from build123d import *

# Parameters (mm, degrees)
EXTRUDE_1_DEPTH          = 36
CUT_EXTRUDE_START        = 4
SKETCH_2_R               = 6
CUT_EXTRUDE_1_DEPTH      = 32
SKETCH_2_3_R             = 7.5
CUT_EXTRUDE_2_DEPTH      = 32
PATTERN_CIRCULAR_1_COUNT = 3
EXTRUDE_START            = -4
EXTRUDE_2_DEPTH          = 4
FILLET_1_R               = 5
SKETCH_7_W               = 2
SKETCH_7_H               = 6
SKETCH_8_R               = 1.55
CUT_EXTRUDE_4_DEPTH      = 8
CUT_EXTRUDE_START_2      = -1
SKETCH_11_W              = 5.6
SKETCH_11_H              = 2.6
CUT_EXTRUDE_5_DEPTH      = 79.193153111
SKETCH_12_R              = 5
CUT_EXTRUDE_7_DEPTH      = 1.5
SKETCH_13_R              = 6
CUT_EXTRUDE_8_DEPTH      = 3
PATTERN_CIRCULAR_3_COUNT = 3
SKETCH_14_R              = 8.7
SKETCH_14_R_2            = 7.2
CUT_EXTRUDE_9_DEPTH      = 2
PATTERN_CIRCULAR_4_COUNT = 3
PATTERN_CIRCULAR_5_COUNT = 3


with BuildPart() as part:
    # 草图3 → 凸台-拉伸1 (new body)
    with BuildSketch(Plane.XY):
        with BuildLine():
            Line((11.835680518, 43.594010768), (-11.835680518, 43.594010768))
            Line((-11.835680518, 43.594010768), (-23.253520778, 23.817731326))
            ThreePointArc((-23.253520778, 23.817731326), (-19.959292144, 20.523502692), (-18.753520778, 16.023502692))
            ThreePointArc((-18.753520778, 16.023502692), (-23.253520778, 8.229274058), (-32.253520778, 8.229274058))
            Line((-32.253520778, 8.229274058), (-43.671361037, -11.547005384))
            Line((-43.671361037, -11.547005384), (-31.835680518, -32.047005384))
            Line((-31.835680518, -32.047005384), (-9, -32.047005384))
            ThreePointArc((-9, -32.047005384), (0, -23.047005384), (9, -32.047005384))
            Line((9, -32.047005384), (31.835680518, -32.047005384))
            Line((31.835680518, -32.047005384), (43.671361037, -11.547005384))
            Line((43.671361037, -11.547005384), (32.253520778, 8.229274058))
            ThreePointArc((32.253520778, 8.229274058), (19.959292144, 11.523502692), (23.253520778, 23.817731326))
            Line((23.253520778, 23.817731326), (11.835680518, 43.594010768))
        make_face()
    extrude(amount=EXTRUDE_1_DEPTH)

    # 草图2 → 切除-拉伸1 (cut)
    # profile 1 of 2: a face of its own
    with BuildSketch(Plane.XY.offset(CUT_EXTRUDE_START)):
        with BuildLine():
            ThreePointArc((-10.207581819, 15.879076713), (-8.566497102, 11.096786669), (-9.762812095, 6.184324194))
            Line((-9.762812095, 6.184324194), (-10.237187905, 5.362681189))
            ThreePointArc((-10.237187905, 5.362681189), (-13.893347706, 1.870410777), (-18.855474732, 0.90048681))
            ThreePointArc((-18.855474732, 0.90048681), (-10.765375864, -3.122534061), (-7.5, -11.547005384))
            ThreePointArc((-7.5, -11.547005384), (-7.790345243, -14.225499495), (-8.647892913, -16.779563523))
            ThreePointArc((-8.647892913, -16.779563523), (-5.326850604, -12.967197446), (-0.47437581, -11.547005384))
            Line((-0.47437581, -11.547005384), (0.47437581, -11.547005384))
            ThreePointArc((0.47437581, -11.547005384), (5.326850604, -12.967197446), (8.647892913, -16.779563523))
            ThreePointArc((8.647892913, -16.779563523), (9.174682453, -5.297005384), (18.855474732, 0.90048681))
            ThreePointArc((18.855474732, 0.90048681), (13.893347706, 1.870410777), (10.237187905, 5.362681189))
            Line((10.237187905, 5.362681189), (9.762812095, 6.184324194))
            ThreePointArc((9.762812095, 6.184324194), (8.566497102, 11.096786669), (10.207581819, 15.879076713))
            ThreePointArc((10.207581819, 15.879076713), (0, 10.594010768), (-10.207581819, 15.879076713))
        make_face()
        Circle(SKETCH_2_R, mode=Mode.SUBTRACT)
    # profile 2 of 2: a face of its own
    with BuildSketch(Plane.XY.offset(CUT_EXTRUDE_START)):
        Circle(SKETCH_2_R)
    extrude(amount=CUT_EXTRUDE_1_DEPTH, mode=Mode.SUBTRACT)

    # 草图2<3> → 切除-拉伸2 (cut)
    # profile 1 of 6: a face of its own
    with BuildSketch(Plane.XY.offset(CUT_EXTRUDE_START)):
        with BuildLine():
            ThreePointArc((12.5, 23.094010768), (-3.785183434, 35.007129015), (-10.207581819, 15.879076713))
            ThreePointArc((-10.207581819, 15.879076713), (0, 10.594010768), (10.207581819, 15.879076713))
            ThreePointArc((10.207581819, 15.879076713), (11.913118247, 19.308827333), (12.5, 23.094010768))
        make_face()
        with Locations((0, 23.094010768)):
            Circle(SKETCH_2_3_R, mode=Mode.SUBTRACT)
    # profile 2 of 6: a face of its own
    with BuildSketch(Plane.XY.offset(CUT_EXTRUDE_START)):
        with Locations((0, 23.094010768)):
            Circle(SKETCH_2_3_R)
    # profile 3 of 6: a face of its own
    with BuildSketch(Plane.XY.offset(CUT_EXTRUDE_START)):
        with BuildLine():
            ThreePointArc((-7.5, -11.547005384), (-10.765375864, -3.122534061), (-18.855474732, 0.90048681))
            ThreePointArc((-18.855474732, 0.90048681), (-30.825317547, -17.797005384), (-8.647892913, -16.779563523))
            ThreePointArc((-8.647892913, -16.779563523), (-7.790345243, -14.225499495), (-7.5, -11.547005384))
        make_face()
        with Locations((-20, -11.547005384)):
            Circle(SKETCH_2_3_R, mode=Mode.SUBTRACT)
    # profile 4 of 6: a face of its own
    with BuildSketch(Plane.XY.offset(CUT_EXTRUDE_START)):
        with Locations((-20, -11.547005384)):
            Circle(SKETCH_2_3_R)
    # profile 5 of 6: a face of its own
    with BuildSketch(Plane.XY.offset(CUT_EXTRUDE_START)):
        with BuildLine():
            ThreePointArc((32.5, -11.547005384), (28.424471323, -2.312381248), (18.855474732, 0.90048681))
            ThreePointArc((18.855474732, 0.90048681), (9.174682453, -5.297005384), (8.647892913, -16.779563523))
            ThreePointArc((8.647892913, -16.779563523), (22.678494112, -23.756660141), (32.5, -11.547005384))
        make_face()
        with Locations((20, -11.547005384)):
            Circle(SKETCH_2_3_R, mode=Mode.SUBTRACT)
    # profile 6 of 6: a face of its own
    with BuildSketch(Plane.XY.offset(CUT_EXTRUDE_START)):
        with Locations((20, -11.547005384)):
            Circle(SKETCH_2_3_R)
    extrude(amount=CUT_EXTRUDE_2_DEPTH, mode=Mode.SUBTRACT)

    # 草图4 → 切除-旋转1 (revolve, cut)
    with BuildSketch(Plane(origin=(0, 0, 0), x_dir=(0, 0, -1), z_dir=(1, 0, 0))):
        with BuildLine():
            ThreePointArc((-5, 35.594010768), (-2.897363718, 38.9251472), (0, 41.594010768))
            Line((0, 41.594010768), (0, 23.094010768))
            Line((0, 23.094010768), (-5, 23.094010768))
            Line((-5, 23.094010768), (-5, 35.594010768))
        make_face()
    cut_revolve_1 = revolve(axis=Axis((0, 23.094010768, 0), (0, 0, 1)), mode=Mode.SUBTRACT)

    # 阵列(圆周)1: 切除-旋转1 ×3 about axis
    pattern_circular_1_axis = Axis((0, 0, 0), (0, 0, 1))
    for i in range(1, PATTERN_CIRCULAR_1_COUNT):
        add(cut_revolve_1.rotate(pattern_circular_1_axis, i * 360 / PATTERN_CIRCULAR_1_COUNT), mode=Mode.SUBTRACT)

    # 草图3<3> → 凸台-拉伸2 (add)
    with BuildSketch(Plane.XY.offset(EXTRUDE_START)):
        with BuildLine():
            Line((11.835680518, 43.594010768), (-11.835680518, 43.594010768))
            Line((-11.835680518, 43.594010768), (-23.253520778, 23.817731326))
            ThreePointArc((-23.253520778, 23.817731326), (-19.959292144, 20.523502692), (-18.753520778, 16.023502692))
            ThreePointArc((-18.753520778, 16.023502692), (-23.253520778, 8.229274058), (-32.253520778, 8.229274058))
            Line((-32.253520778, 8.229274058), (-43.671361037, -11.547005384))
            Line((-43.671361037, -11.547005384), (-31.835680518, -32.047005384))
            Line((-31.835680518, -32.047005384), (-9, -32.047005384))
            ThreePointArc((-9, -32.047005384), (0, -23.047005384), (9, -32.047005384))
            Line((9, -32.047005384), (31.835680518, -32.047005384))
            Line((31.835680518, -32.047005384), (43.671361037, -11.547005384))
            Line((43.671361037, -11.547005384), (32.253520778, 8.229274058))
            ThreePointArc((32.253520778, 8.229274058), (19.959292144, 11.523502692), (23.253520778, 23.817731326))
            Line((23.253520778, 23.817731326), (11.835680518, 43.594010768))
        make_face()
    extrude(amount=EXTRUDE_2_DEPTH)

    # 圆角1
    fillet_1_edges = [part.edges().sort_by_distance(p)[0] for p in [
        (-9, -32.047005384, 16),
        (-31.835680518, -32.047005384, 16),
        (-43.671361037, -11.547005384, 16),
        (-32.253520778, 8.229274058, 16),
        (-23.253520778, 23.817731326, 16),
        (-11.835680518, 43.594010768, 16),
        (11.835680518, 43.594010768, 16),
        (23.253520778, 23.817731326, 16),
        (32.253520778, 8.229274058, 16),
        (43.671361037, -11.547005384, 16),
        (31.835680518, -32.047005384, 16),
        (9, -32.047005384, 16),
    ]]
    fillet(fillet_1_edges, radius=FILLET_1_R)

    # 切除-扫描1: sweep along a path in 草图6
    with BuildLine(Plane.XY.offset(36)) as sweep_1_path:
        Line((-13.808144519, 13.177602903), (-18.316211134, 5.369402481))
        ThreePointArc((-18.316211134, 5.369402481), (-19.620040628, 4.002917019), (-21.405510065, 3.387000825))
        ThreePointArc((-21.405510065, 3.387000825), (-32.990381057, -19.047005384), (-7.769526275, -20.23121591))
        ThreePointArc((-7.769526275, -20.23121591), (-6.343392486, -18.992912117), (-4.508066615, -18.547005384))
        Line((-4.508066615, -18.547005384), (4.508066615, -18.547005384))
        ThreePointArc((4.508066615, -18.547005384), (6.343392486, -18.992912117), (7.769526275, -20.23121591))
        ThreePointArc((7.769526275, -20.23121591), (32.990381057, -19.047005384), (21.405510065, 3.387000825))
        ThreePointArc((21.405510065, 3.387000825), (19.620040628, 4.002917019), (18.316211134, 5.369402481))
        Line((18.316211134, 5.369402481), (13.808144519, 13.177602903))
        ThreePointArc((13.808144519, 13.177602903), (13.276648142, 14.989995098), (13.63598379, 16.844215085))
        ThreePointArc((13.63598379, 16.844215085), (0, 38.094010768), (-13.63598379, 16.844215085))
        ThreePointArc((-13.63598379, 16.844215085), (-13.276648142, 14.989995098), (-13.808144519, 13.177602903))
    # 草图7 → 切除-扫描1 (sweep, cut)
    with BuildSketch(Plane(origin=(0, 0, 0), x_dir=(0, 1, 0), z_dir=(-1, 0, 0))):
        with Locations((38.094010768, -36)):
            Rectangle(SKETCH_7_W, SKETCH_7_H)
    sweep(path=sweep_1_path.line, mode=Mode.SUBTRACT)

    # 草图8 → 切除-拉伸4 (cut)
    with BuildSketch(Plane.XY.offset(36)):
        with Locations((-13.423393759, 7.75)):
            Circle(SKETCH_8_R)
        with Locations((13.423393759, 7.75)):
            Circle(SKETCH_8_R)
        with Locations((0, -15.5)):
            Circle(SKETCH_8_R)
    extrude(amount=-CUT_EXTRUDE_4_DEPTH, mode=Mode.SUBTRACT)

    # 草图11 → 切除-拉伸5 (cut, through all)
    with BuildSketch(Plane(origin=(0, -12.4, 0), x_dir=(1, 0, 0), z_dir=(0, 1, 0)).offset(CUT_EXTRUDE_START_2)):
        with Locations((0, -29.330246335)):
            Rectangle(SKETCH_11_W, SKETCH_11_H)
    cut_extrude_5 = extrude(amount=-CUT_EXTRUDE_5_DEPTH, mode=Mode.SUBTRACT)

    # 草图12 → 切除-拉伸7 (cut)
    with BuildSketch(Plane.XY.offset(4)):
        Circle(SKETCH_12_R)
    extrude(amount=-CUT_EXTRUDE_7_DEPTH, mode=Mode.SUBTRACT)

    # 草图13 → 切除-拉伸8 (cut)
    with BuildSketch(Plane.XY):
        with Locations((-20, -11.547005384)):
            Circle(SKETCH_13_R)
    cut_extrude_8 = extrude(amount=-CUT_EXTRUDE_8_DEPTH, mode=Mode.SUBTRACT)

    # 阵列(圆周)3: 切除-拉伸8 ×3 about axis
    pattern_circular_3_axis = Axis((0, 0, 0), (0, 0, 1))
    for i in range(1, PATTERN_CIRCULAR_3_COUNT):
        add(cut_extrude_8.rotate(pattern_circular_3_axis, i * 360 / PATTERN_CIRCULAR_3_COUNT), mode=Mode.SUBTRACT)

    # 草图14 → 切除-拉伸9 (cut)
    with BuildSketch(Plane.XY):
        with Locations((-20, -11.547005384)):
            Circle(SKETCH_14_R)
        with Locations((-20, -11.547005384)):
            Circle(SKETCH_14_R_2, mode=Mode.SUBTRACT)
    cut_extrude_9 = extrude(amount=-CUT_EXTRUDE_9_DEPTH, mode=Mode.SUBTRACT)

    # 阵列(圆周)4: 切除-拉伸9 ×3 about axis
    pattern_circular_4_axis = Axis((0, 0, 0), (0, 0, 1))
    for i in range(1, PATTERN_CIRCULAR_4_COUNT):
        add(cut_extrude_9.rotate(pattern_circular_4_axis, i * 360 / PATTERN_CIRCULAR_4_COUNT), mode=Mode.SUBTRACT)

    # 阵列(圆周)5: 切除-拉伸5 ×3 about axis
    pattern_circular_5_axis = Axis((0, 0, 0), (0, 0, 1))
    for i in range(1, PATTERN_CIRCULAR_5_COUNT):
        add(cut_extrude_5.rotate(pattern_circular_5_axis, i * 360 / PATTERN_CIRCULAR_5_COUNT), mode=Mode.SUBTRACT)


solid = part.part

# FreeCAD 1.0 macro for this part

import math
import FreeCAD as App
import Part
import Sketcher
Q = App.Units.Quantity


def edges_at(feature, points):
    """Names of the edges that pass closest to the given points."""
    edges = feature.Shape.Edges
    near = lambda p: min(range(len(edges)), key=lambda i: edges[i].distToShape(Part.Vertex(*p))[0])
    return sorted({f"Edge{near(p) + 1}" for p in points})


def add_polygon(sketch, points):
    """Adds a closed chain of lines whose ends are joined by coincident constraints."""
    first, n = sketch.GeometryCount, len(points)
    for a, b in zip(points, points[1:] + points[:1]):
        sketch.addGeometry(Part.LineSegment(App.Vector(*a, 0), App.Vector(*b, 0)), False)
    for i in range(n):
        sketch.addConstraint(Sketcher.Constraint("Coincident", first + i, 2, first + (i + 1) % n, 1))

doc = App.newDocument("Part")
body = doc.addObject("PartDesign::Body", "Body")

# Sketch on XY plane
sketch1 = body.newObject("Sketcher::SketchObject", "Sketch")
sketch1.AttachmentSupport = (doc.getObject("XY_Plane"), [""])
sketch1.MapMode = "FlatFace"
sketch1.addGeometry([
    Part.LineSegment(App.Vector(11.835681, 43.594011, 0), App.Vector(-11.835681, 43.594011, 0)),  # 0
    Part.LineSegment(App.Vector(-11.835681, 43.594011, 0), App.Vector(-23.253521, 23.817731, 0)),  # 1
    Part.ArcOfCircle(Part.Circle(App.Vector(-27.753521, 16.023503, 0), App.Vector(0, 0, 1), 9), math.radians(0), math.radians(60)),  # 2
    Part.ArcOfCircle(Part.Circle(App.Vector(-27.753521, 16.023503, 0), App.Vector(0, 0, 1), 9), math.radians(-120), math.radians(0)),  # 3
    Part.LineSegment(App.Vector(-32.253521, 8.229274, 0), App.Vector(-43.671361, -11.547005, 0)),  # 4
    Part.LineSegment(App.Vector(-43.671361, -11.547005, 0), App.Vector(-31.835681, -32.047005, 0)),  # 5
    Part.LineSegment(App.Vector(-31.835681, -32.047005, 0), App.Vector(-9, -32.047005, 0)),  # 6
    Part.ArcOfCircle(Part.Circle(App.Vector(0, -32.047005, 0), App.Vector(0, 0, 1), 9), math.radians(0), math.radians(180)),  # 7
    Part.LineSegment(App.Vector(9, -32.047005, 0), App.Vector(31.835681, -32.047005, 0)),  # 8
    Part.LineSegment(App.Vector(31.835681, -32.047005, 0), App.Vector(43.671361, -11.547005, 0)),  # 9
    Part.LineSegment(App.Vector(43.671361, -11.547005, 0), App.Vector(32.253521, 8.229274, 0)),  # 10
    Part.ArcOfCircle(Part.Circle(App.Vector(27.753521, 16.023503, 0), App.Vector(0, 0, 1), 9), math.radians(120), math.radians(300)),  # 11
    Part.LineSegment(App.Vector(23.253521, 23.817731, 0), App.Vector(11.835681, 43.594011, 0)),  # 12
], False)
sketch1.addConstraint([
    Sketcher.Constraint("Coincident", 0, 2, 1, 1),
    Sketcher.Constraint("Coincident", 1, 2, 2, 2),
    Sketcher.Constraint("Tangent", 2, 1, 3, 2),
    Sketcher.Constraint("Coincident", 3, 1, 4, 1),
    Sketcher.Constraint("Coincident", 4, 2, 5, 1),
    Sketcher.Constraint("Coincident", 5, 2, 6, 1),
    Sketcher.Constraint("Coincident", 6, 2, 7, 2),
    Sketcher.Constraint("Coincident", 7, 1, 8, 1),
    Sketcher.Constraint("Coincident", 8, 2, 9, 1),
    Sketcher.Constraint("Coincident", 9, 2, 10, 1),
    Sketcher.Constraint("Coincident", 10, 2, 11, 2),
    Sketcher.Constraint("Coincident", 11, 1, 12, 1),
    Sketcher.Constraint("Coincident", 12, 2, 0, 1),
    Sketcher.Constraint("Horizontal", 0),
    Sketcher.Constraint("Horizontal", 6),
    Sketcher.Constraint("Horizontal", 8),
    Sketcher.Constraint("Equal", 2, 3),
    Sketcher.Constraint("Equal", 3, 7),
    Sketcher.Constraint("Equal", 7, 11),
    Sketcher.Constraint("Symmetric", 2, 3, 11, 3, -2),
    Sketcher.Constraint("Symmetric", 6, 2, 7, 1, -2),
    Sketcher.Constraint("Symmetric", 4, 2, 9, 2, -2),
    Sketcher.Constraint("Parallel", 1, 4),
    Sketcher.Constraint("Parallel", 4, 9),
    Sketcher.Constraint("Parallel", 5, 10),
    Sketcher.Constraint("Parallel", 10, 12),
    Sketcher.Constraint("Horizontal", 11, 3, 2, 1),
    Sketcher.Constraint("Horizontal", 7, 3, 5, 2),
    Sketcher.Constraint("Horizontal", 3, 1, 10, 2),
    Sketcher.Constraint("Horizontal", 1, 2, 11, 1),
    Sketcher.Constraint("Equal", 1, 4),
    Sketcher.Constraint("Radius", 2, 9.0),
    Sketcher.Constraint("Angle", 1, Q("-120 deg")),
    Sketcher.Constraint("DistanceX", 3, 1, 1, 2, 9.0),
    Sketcher.Constraint("DistanceX", 2, 3, 1, 2, 4.5),
    Sketcher.Constraint("DistanceY", 5, 2, 4, 2, 20.5),
    Sketcher.Constraint("DistanceX", 0, 2, 0, 1, 23.671361),
    Sketcher.Constraint("DistanceX", 6, 1, 6, 2, 22.835681),
    Sketcher.Constraint("DistanceY", -1, 1, 0, 2, 43.594011),
])
pad1 = body.newObject("PartDesign::Pad", "Pad")
pad1.Profile = sketch1
pad1.Length = 36

# Sketch on XY plane
sketch2 = body.newObject("Sketcher::SketchObject", "Sketch001")
sketch2.AttachmentSupport = (doc.getObject("XY_Plane"), [""])
sketch2.MapMode = "FlatFace"
sketch2.AttachmentOffset = App.Placement(App.Vector(0, 0, 4), App.Rotation())
sketch2.addGeometry([
    Part.ArcOfCircle(Part.Circle(App.Vector(-17.557041, 10.684324, 0), App.Vector(0, 0, 1), 9), math.radians(-30), math.radians(35.253475)),  # 0
    Part.LineSegment(App.Vector(-9.762812, 6.184324, 0), App.Vector(-10.237188, 5.362681, 0)),  # 1
    Part.ArcOfCircle(Part.Circle(App.Vector(-18.031417, 9.862681, 0), App.Vector(0, 0, 1), 9), math.radians(-95.253475), math.radians(-30)),  # 2
    Part.ArcOfCircle(Part.Circle(App.Vector(-20, -11.547005, 0), App.Vector(0, 0, 1), 12.5), math.radians(0), math.radians(84.746525)),  # 3
    Part.ArcOfCircle(Part.Circle(App.Vector(-20, -11.547005, 0), App.Vector(0, 0, 1), 12.5), math.radians(-24.746525), math.radians(0)),  # 4
    Part.ArcOfCircle(Part.Circle(App.Vector(-0.474376, -20.547005, 0), App.Vector(0, 0, 1), 9), math.radians(90), math.radians(155.253475)),  # 5
    Part.LineSegment(App.Vector(-0.474376, -11.547005, 0), App.Vector(0.474376, -11.547005, 0)),  # 6
    Part.ArcOfCircle(Part.Circle(App.Vector(0.474376, -20.547005, 0), App.Vector(0, 0, 1), 9), math.radians(24.746525), math.radians(90)),  # 7
    Part.ArcOfCircle(Part.Circle(App.Vector(20, -11.547005, 0), App.Vector(0, 0, 1), 12.5), math.radians(95.253475), math.radians(204.746525)),  # 8
    Part.ArcOfCircle(Part.Circle(App.Vector(18.031417, 9.862681, 0), App.Vector(0, 0, 1), 9), math.radians(-150), math.radians(-84.746525)),  # 9
    Part.LineSegment(App.Vector(10.237188, 5.362681, 0), App.Vector(9.762812, 6.184324, 0)),  # 10
    Part.ArcOfCircle(Part.Circle(App.Vector(17.557041, 10.684324, 0), App.Vector(0, 0, 1), 9), math.radians(144.746525), math.radians(210)),  # 11
    Part.ArcOfCircle(Part.Circle(App.Vector(0, 23.094011, 0), App.Vector(0, 0, 1), 12.5), math.radians(-144.746525), math.radians(-35.253475)),  # 12
], False)
sketch2.addConstraint([
    Sketcher.Constraint("Tangent", 0, 1, 1, 1),
    Sketcher.Constraint("Tangent", 1, 2, 2, 2),
    Sketcher.Constraint("Tangent", 2, 1, 3, 2),
    Sketcher.Constraint("Tangent", 3, 1, 4, 2),
    Sketcher.Constraint("Tangent", 4, 1, 5, 2),
    Sketcher.Constraint("Tangent", 5, 1, 6, 1),
    Sketcher.Constraint("Tangent", 6, 2, 7, 2),
    Sketcher.Constraint("Tangent", 7, 1, 8, 2),
    Sketcher.Constraint("Tangent", 8, 1, 9, 2),
    Sketcher.Constraint("Tangent", 9, 1, 10, 1),
    Sketcher.Constraint("Tangent", 10, 2, 11, 2),
    Sketcher.Constraint("Tangent", 11, 1, 12, 2),
    Sketcher.Constraint("Tangent", 12, 1, 0, 2),
    Sketcher.Constraint("Horizontal", 6),
    Sketcher.Constraint("Equal", 0, 2),
    Sketcher.Constraint("Equal", 3, 4),
    Sketcher.Constraint("Equal", 2, 5),
    Sketcher.Constraint("Equal", 5, 7),
    Sketcher.Constraint("Equal", 4, 8),
    Sketcher.Constraint("Equal", 7, 9),
    Sketcher.Constraint("Equal", 9, 11),
    Sketcher.Constraint("Equal", 8, 12),
    Sketcher.Constraint("Symmetric", 3, 3, 8, 3, -2),
    Sketcher.Constraint("Symmetric", 0, 3, 11, 3, -2),
    Sketcher.Constraint("Horizontal", 2, 3, 9, 3),
    Sketcher.Constraint("Horizontal", 8, 3, 3, 1),
    Sketcher.Constraint("Horizontal", 3, 1, 5, 1),
    Sketcher.Constraint("Radius", 0, 9.0),
    Sketcher.Constraint("Radius", 3, 12.5),
    Sketcher.Constraint("Angle", 1, Q("-120 deg")),
    Sketcher.Constraint("DistanceX", 3, 3, -1, 1, 20.0),
    Sketcher.Constraint("DistanceX", 6, 2, 8, 1, 18.381099),
    Sketcher.Constraint("Distance", 1, 0.948752),
    Sketcher.Constraint("DistanceY", -1, 1, 2, 3, 9.862681),
])
pocket1 = body.newObject("PartDesign::Pocket", "Pocket")
pocket1.Profile = sketch2
pocket1.Length = 32
pocket1.Reversed = True

# Sketch on XY plane
sketch3 = body.newObject("Sketcher::SketchObject", "Sketch002")
sketch3.AttachmentSupport = (doc.getObject("XY_Plane"), [""])
sketch3.MapMode = "FlatFace"
sketch3.AttachmentOffset = App.Placement(App.Vector(0, 0, 4), App.Rotation())
sketch3.addGeometry([
    Part.ArcOfCircle(Part.Circle(App.Vector(0, 23.094011, 0), App.Vector(0, 0, 1), 12.5), math.radians(0), math.radians(215.253475)),  # 0
    Part.ArcOfCircle(Part.Circle(App.Vector(0, 23.094011, 0), App.Vector(0, 0, 1), 12.5), math.radians(-144.746525), math.radians(-35.253475)),  # 1
    Part.ArcOfCircle(Part.Circle(App.Vector(0, 23.094011, 0), App.Vector(0, 0, 1), 12.5), math.radians(-35.253475), math.radians(0)),  # 2
    Part.ArcOfCircle(Part.Circle(App.Vector(-20, -11.547005, 0), App.Vector(0, 0, 1), 12.5), math.radians(0), math.radians(84.746525)),  # 3
    Part.ArcOfCircle(Part.Circle(App.Vector(-20, -11.547005, 0), App.Vector(0, 0, 1), 12.5), math.radians(84.746525), math.radians(335.253475)),  # 4
    Part.ArcOfCircle(Part.Circle(App.Vector(-20, -11.547005, 0), App.Vector(0, 0, 1), 12.5), math.radians(-24.746525), math.radians(0)),  # 5
    Part.ArcOfCircle(Part.Circle(App.Vector(20, -11.547005, 0), App.Vector(0, 0, 1), 12.5), math.radians(0), math.radians(95.253475)),  # 6
    Part.ArcOfCircle(Part.Circle(App.Vector(20, -11.547005, 0), App.Vector(0, 0, 1), 12.5), math.radians(95.253475), math.radians(204.746525)),  # 7
    Part.ArcOfCircle(Part.Circle(App.Vector(20, -11.547005, 0), App.Vector(0, 0, 1), 12.5), math.radians(-155.253475), math.radians(0)),  # 8
], False)
sketch3.addConstraint([
    Sketcher.Constraint("Tangent", 0, 2, 1, 1),
    Sketcher.Constraint("Tangent", 1, 2, 2, 1),
    Sketcher.Constraint("Tangent", 2, 2, 0, 1),
    Sketcher.Constraint("Tangent", 3, 2, 4, 1),
    Sketcher.Constraint("Tangent", 4, 2, 5, 1),
    Sketcher.Constraint("Tangent", 5, 2, 3, 1),
    Sketcher.Constraint("Tangent", 6, 2, 7, 1),
    Sketcher.Constraint("Tangent", 7, 2, 8, 1),
    Sketcher.Constraint("Tangent", 8, 2, 6, 1),
    Sketcher.Constraint("Equal", 2, 3),
    Sketcher.Constraint("Equal", 5, 6),
    Sketcher.Constraint("Symmetric", 3, 3, 6, 3, -2),
    Sketcher.Constraint("Symmetric", 0, 2, 1, 2, -2),
    Sketcher.Constraint("Horizontal", 1, 3, 2, 2),
    Sketcher.Constraint("Horizontal", 8, 3, 5, 2),
    Sketcher.Constraint("Horizontal", 3, 2, 6, 2),
    Sketcher.Constraint("Horizontal", 4, 2, 7, 2),
    Sketcher.Constraint("Horizontal", 5, 2, 8, 2),
    Sketcher.Constraint("Radius", 0, 12.5),
    Sketcher.Constraint("DistanceX", 3, 3, -1, 1, 20.0),
    Sketcher.Constraint("DistanceY", -1, 1, 0, 3, 23.094011),
    Sketcher.Constraint("DistanceX", 0, 2, -1, 1, 10.207582),
    Sketcher.Constraint("DistanceY", 3, 2, 0, 2, 14.97859),
    Sketcher.Constraint("DistanceY", 4, 2, 3, 3, 5.232558),
    Sketcher.Constraint("DistanceX", 3, 2, 4, 2, 10.207582),
])
pocket2 = body.newObject("PartDesign::Pocket", "Pocket001")
pocket2.Profile = sketch3
pocket2.Length = 32
pocket2.Reversed = True

# Sketch on YZ plane
sketch4 = body.newObject("Sketcher::SketchObject", "Sketch003")
sketch4.AttachmentSupport = (doc.getObject("YZ_Plane"), [""])
sketch4.MapMode = "FlatFace"
sketch4.addGeometry([
    Part.ArcOfCircle(Part.Circle(App.Vector(29.322381, -8.625955, 0), App.Vector(0, 0, 1), 15), math.radians(35.104093), math.radians(65.284765)),
    Part.LineSegment(App.Vector(35.594011, 5, 0), App.Vector(23.094011, 5, 0)),
    Part.LineSegment(App.Vector(23.094011, 5, 0), App.Vector(23.094011, 0, 0)),
    Part.LineSegment(App.Vector(23.094011, 0, 0), App.Vector(41.594011, 0, 0)),
], False)
sketch4.addGeometry(Part.LineSegment(App.Vector(23.094011, -8.625955, 0), App.Vector(23.094011, 5, 0)), True)  # axis
sketch4.addConstraint([
    Sketcher.Constraint("Coincident", 0, 2, 1, 1),
    Sketcher.Constraint("Coincident", 1, 2, 2, 1),
    Sketcher.Constraint("Coincident", 2, 2, 3, 1),
    Sketcher.Constraint("Coincident", 3, 2, 0, 1),
    Sketcher.Constraint("Horizontal", 1),
    Sketcher.Constraint("Vertical", 2),
    Sketcher.Constraint("Horizontal", 3),
    Sketcher.Constraint("Vertical", 4),
    Sketcher.Constraint("Coincident", 4, 2, 1, 2),
    Sketcher.Constraint("PointOnObject", 2, 2, -1),
    Sketcher.Constraint("Horizontal", 0, 3, 4, 1),
    Sketcher.Constraint("Radius", 0, 15.0),
    Sketcher.Constraint("DistanceY", 2, 2, 2, 1, 5.0),
    Sketcher.Constraint("DistanceX", 1, 2, 1, 1, 12.5),
    Sketcher.Constraint("DistanceX", 3, 1, 3, 2, 18.5),
    Sketcher.Constraint("DistanceX", -1, 1, 0, 3, 29.322381),
])
groove = body.newObject("PartDesign::Groove", "Groove")
groove.Profile = sketch4
groove.ReferenceAxis = (sketch4, ["Axis0"])
groove.Angle = 360
doc.recompute()

polarpattern = body.newObject("PartDesign::PolarPattern", "PolarPattern")
polarpattern.Originals = [groove]
polarpattern.Axis = (doc.getObject("Z_Axis"), [""])
polarpattern.Angle = 360
polarpattern.Occurrences = 3
body.Tip = polarpattern

# Sketch on XY plane
sketch5 = body.newObject("Sketcher::SketchObject", "Sketch004")
sketch5.AttachmentSupport = (doc.getObject("XY_Plane"), [""])
sketch5.MapMode = "FlatFace"
sketch5.AttachmentOffset = App.Placement(App.Vector(0, 0, -4), App.Rotation())
sketch5.addGeometry([
    Part.LineSegment(App.Vector(11.835681, 43.594011, 0), App.Vector(-11.835681, 43.594011, 0)),  # 0
    Part.LineSegment(App.Vector(-11.835681, 43.594011, 0), App.Vector(-23.253521, 23.817731, 0)),  # 1
    Part.ArcOfCircle(Part.Circle(App.Vector(-27.753521, 16.023503, 0), App.Vector(0, 0, 1), 9), math.radians(0), math.radians(60)),  # 2
    Part.ArcOfCircle(Part.Circle(App.Vector(-27.753521, 16.023503, 0), App.Vector(0, 0, 1), 9), math.radians(-120), math.radians(0)),  # 3
    Part.LineSegment(App.Vector(-32.253521, 8.229274, 0), App.Vector(-43.671361, -11.547005, 0)),  # 4
    Part.LineSegment(App.Vector(-43.671361, -11.547005, 0), App.Vector(-31.835681, -32.047005, 0)),  # 5
    Part.LineSegment(App.Vector(-31.835681, -32.047005, 0), App.Vector(-9, -32.047005, 0)),  # 6
    Part.ArcOfCircle(Part.Circle(App.Vector(0, -32.047005, 0), App.Vector(0, 0, 1), 9), math.radians(0), math.radians(180)),  # 7
    Part.LineSegment(App.Vector(9, -32.047005, 0), App.Vector(31.835681, -32.047005, 0)),  # 8
    Part.LineSegment(App.Vector(31.835681, -32.047005, 0), App.Vector(43.671361, -11.547005, 0)),  # 9
    Part.LineSegment(App.Vector(43.671361, -11.547005, 0), App.Vector(32.253521, 8.229274, 0)),  # 10
    Part.ArcOfCircle(Part.Circle(App.Vector(27.753521, 16.023503, 0), App.Vector(0, 0, 1), 9), math.radians(120), math.radians(300)),  # 11
    Part.LineSegment(App.Vector(23.253521, 23.817731, 0), App.Vector(11.835681, 43.594011, 0)),  # 12
], False)
sketch5.addConstraint([
    Sketcher.Constraint("Coincident", 0, 2, 1, 1),
    Sketcher.Constraint("Coincident", 1, 2, 2, 2),
    Sketcher.Constraint("Tangent", 2, 1, 3, 2),
    Sketcher.Constraint("Coincident", 3, 1, 4, 1),
    Sketcher.Constraint("Coincident", 4, 2, 5, 1),
    Sketcher.Constraint("Coincident", 5, 2, 6, 1),
    Sketcher.Constraint("Coincident", 6, 2, 7, 2),
    Sketcher.Constraint("Coincident", 7, 1, 8, 1),
    Sketcher.Constraint("Coincident", 8, 2, 9, 1),
    Sketcher.Constraint("Coincident", 9, 2, 10, 1),
    Sketcher.Constraint("Coincident", 10, 2, 11, 2),
    Sketcher.Constraint("Coincident", 11, 1, 12, 1),
    Sketcher.Constraint("Coincident", 12, 2, 0, 1),
    Sketcher.Constraint("Horizontal", 0),
    Sketcher.Constraint("Horizontal", 6),
    Sketcher.Constraint("Horizontal", 8),
    Sketcher.Constraint("Equal", 2, 3),
    Sketcher.Constraint("Equal", 3, 7),
    Sketcher.Constraint("Equal", 7, 11),
    Sketcher.Constraint("Symmetric", 2, 3, 11, 3, -2),
    Sketcher.Constraint("Symmetric", 6, 2, 7, 1, -2),
    Sketcher.Constraint("Symmetric", 4, 2, 9, 2, -2),
    Sketcher.Constraint("Parallel", 1, 4),
    Sketcher.Constraint("Parallel", 4, 9),
    Sketcher.Constraint("Parallel", 5, 10),
    Sketcher.Constraint("Parallel", 10, 12),
    Sketcher.Constraint("Horizontal", 11, 3, 2, 1),
    Sketcher.Constraint("Horizontal", 7, 3, 5, 2),
    Sketcher.Constraint("Horizontal", 3, 1, 10, 2),
    Sketcher.Constraint("Horizontal", 1, 2, 11, 1),
    Sketcher.Constraint("Equal", 1, 4),
    Sketcher.Constraint("Radius", 2, 9.0),
    Sketcher.Constraint("Angle", 1, Q("-120 deg")),
    Sketcher.Constraint("DistanceX", 3, 1, 1, 2, 9.0),
    Sketcher.Constraint("DistanceX", 2, 3, 1, 2, 4.5),
    Sketcher.Constraint("DistanceY", 5, 2, 4, 2, 20.5),
    Sketcher.Constraint("DistanceX", 0, 2, 0, 1, 23.671361),
    Sketcher.Constraint("DistanceX", 6, 1, 6, 2, 22.835681),
    Sketcher.Constraint("DistanceY", -1, 1, 0, 2, 43.594011),
])
pad2 = body.newObject("PartDesign::Pad", "Pad001")
pad2.Profile = sketch5
pad2.Length = 4
doc.recompute()

fillet = body.newObject("PartDesign::Fillet", "Fillet")
fillet.Base = (pad2, edges_at(pad2, [
    (-9, -32.047, 16),
    (-31.836, -32.047, 16),
    (-43.671, -11.547, 16),
    (-32.254, 8.229, 16),
    (-23.254, 23.818, 16),
    (-11.836, 43.594, 16),
    (11.836, 43.594, 16),
    (23.254, 23.818, 16),
    (32.254, 8.229, 16),
    (43.671, -11.547, 16),
    (31.836, -32.047, 16),
    (9, -32.047, 16),
]))
fillet.Radius = 5

# Sketch on YZ plane
sketch6 = body.newObject("Sketcher::SketchObject", "Sketch005")
sketch6.AttachmentSupport = (doc.getObject("YZ_Plane"), [""])
sketch6.MapMode = "FlatFace"
add_polygon(sketch6, [(37.094011, 33), (37.094011, 39), (39.094011, 39), (39.094011, 33)])  # lines 0-3
sketch6.addConstraint([
    Sketcher.Constraint("Vertical", 0),
    Sketcher.Constraint("Horizontal", 1),
    Sketcher.Constraint("Vertical", 2),
    Sketcher.Constraint("Horizontal", 3),
    Sketcher.Constraint("DistanceX", 1, 1, 1, 2, 2.0),
    Sketcher.Constraint("DistanceY", 0, 1, 0, 2, 6.0),
    Sketcher.Constraint("DistanceY", -1, 1, 0, 2, 39.0),
    Sketcher.Constraint("DistanceX", -1, 1, 0, 2, 37.094011),
])

# Sketch on XY plane
sketch7 = body.newObject("Sketcher::SketchObject", "Sketch006")
sketch7.AttachmentSupport = (doc.getObject("XY_Plane"), [""])
sketch7.MapMode = "FlatFace"
sketch7.AttachmentOffset = App.Placement(App.Vector(0, 0, 36), App.Rotation())
sketch7.addGeometry([
    Part.LineSegment(App.Vector(-13.808145, 13.177603, 0), App.Vector(-18.316211, 5.369402, 0)),  # 0
    Part.ArcOfCircle(Part.Circle(App.Vector(-21.780313, 7.369402, 0), App.Vector(0, 0, 1), 4), math.radians(-84.62346), math.radians(-30)),  # 1
    Part.ArcOfCircle(Part.Circle(App.Vector(-20, -11.547005, 0), App.Vector(0, 0, 1), 15), math.radians(95.37654), math.radians(324.62346)),  # 2
    Part.ArcOfCircle(Part.Circle(App.Vector(-4.508067, -22.547005, 0), App.Vector(0, 0, 1), 4), math.radians(90), math.radians(144.62346)),  # 3
    Part.LineSegment(App.Vector(-4.508067, -18.547005, 0), App.Vector(4.508067, -18.547005, 0)),  # 4
    Part.ArcOfCircle(Part.Circle(App.Vector(4.508067, -22.547005, 0), App.Vector(0, 0, 1), 4), math.radians(35.37654), math.radians(90)),  # 5
    Part.ArcOfCircle(Part.Circle(App.Vector(20, -11.547005, 0), App.Vector(0, 0, 1), 15), math.radians(-144.62346), math.radians(84.62346)),  # 6
    Part.ArcOfCircle(Part.Circle(App.Vector(21.780313, 7.369402, 0), App.Vector(0, 0, 1), 4), math.radians(-150), math.radians(-95.37654)),  # 7
    Part.LineSegment(App.Vector(18.316211, 5.369402, 0), App.Vector(13.808145, 13.177603, 0)),  # 8
    Part.ArcOfCircle(Part.Circle(App.Vector(17.272246, 15.177603, 0), App.Vector(0, 0, 1), 4), math.radians(155.37654), math.radians(210)),  # 9
    Part.ArcOfCircle(Part.Circle(App.Vector(0, 23.094011, 0), App.Vector(0, 0, 1), 15), math.radians(-24.62346), math.radians(204.62346)),  # 10
    Part.ArcOfCircle(Part.Circle(App.Vector(-17.272246, 15.177603, 0), App.Vector(0, 0, 1), 4), math.radians(-30), math.radians(24.62346)),  # 11
], False)
sketch7.addConstraint([
    Sketcher.Constraint("Tangent", 0, 2, 1, 2),
    Sketcher.Constraint("Tangent", 1, 1, 2, 1),
    Sketcher.Constraint("Tangent", 2, 2, 3, 2),
    Sketcher.Constraint("Tangent", 3, 1, 4, 1),
    Sketcher.Constraint("Tangent", 4, 2, 5, 2),
    Sketcher.Constraint("Tangent", 5, 1, 6, 1),
    Sketcher.Constraint("Tangent", 6, 2, 7, 2),
    Sketcher.Constraint("Tangent", 7, 1, 8, 1),
    Sketcher.Constraint("Tangent", 8, 2, 9, 2),
    Sketcher.Constraint("Tangent", 9, 1, 10, 1),
    Sketcher.Constraint("Tangent", 10, 2, 11, 2),
    Sketcher.Constraint("Tangent", 11, 1, 0, 1),
    Sketcher.Constraint("Horizontal", 4),
    Sketcher.Constraint("Equal", 1, 3),
    Sketcher.Constraint("Equal", 3, 5),
    Sketcher.Constraint("Equal", 2, 6),
    Sketcher.Constraint("Equal", 5, 7),
    Sketcher.Constraint("Equal", 7, 9),
    Sketcher.Constraint("Equal", 6, 10),
    Sketcher.Constraint("Equal", 9, 11),
    Sketcher.Constraint("Symmetric", 2, 3, 6, 3, -2),
    Sketcher.Constraint("Symmetric", 9, 3, 11, 3, -2),
    Sketcher.Constraint("Horizontal", 1, 3, 7, 3),
    Sketcher.Constraint("Radius", 1, 4.0),
    Sketcher.Constraint("Radius", 2, 15.0),
    Sketcher.Constraint("Angle", 0, Q("-120 deg")),
    Sketcher.Constraint("DistanceX", 2, 3, -1, 1, 20.0),
    Sketcher.Constraint("DistanceY", 3, 3, 2, 3, 11.0),
    Sketcher.Constraint("DistanceY", -1, 1, 1, 1, 3.387001),
    Sketcher.Constraint("DistanceY", 7, 3, 9, 3, 7.8082),
    Sketcher.Constraint("DistanceX", 1, 1, 0, 2, 3.089299),
])
doc.recompute()

subtractivepipe = body.newObject("PartDesign::SubtractivePipe", "SubtractivePipe")
subtractivepipe.Profile = sketch6
subtractivepipe.Spine = (sketch7, ["Edge1", "Edge2", "Edge3", "Edge4", "Edge5", "Edge6", "Edge7", "Edge8", "Edge9", "Edge10", "Edge11", "Edge12"])

# Sketch on XY plane
sketch8 = body.newObject("Sketcher::SketchObject", "Sketch007")
sketch8.AttachmentSupport = (doc.getObject("XY_Plane"), [""])
sketch8.MapMode = "FlatFace"
sketch8.AttachmentOffset = App.Placement(App.Vector(0, 0, 36), App.Rotation())
sketch8.addGeometry([
    Part.Circle(App.Vector(-13.423394, 7.75, 0), App.Vector(0, 0, 1), 1.55),
    Part.Circle(App.Vector(13.423394, 7.75, 0), App.Vector(0, 0, 1), 1.55),
    Part.Circle(App.Vector(0, -15.5, 0), App.Vector(0, 0, 1), 1.55),
], False)
sketch8.addConstraint([
    Sketcher.Constraint("Equal", 0, 1),
    Sketcher.Constraint("Equal", 1, 2),
    Sketcher.Constraint("Symmetric", 0, 3, 1, 3, -2),
    Sketcher.Constraint("PointOnObject", 2, 3, -2),
    Sketcher.Constraint("Diameter", 0, 3.1),
    Sketcher.Constraint("DistanceY", 2, 3, -1, 1, 15.5),
    Sketcher.Constraint("DistanceY", -1, 1, 0, 3, 7.75),
    Sketcher.Constraint("DistanceX", 0, 3, -1, 1, 13.423394),
])
pocket3 = body.newObject("PartDesign::Pocket", "Pocket002")
pocket3.Profile = sketch8
pocket3.Length = 8

# Sketch on XZ plane
sketch9 = body.newObject("Sketcher::SketchObject", "Sketch008")
sketch9.AttachmentSupport = (doc.getObject("XZ_Plane"), [""])
sketch9.MapMode = "FlatFace"
sketch9.AttachmentOffset = App.Placement(App.Vector(0, 0, 13.4), App.Rotation())
add_polygon(sketch9, [(-2.8, 28.030246), (-2.8, 30.630246), (2.8, 30.630246), (2.8, 28.030246)])  # lines 0-3
sketch9.addConstraint([
    Sketcher.Constraint("Vertical", 0),
    Sketcher.Constraint("Horizontal", 1),
    Sketcher.Constraint("Vertical", 2),
    Sketcher.Constraint("Horizontal", 3),
    Sketcher.Constraint("DistanceX", 1, 1, 1, 2, 5.6),
    Sketcher.Constraint("DistanceY", 0, 1, 0, 2, 2.6),
    Sketcher.Constraint("DistanceX", 0, 2, -1, 1, 2.8),
    Sketcher.Constraint("DistanceY", -1, 1, 0, 2, 30.630246),
])
pocket4 = body.newObject("PartDesign::Pocket", "Pocket003")
pocket4.Profile = sketch9
pocket4.Type = "ThroughAll"
pocket4.Reversed = True

# Sketch on XY plane
sketch10 = body.newObject("Sketcher::SketchObject", "Sketch009")
sketch10.AttachmentSupport = (doc.getObject("XY_Plane"), [""])
sketch10.MapMode = "FlatFace"
sketch10.AttachmentOffset = App.Placement(App.Vector(0, 0, 4), App.Rotation())
sketch10.addGeometry(Part.Circle(App.Vector(0, 0, 0), App.Vector(0, 0, 1), 5), False)
sketch10.addConstraint([
    Sketcher.Constraint("Coincident", 0, 3, -1, 1),
    Sketcher.Constraint("Diameter", 0, 10.0),
])
pocket5 = body.newObject("PartDesign::Pocket", "Pocket004")
pocket5.Profile = sketch10
pocket5.Length = 1.5

# Sketch on XY plane
sketch11 = body.newObject("Sketcher::SketchObject", "Sketch010")
sketch11.AttachmentSupport = (doc.getObject("XY_Plane"), [""])
sketch11.MapMode = "FlatFace"
sketch11.addGeometry(Part.Circle(App.Vector(-20, -11.547005, 0), App.Vector(0, 0, 1), 6), False)
sketch11.addConstraint([
    Sketcher.Constraint("Diameter", 0, 12.0),
    Sketcher.Constraint("DistanceX", 0, 3, -1, 1, 20.0),
    Sketcher.Constraint("DistanceY", 0, 3, -1, 1, 11.547005),
])
pocket6 = body.newObject("PartDesign::Pocket", "Pocket005")
pocket6.Profile = sketch11
pocket6.Length = 3
doc.recompute()

polarpattern2 = body.newObject("PartDesign::PolarPattern", "PolarPattern001")
polarpattern2.Originals = [pocket6]
polarpattern2.Axis = (doc.getObject("Z_Axis"), [""])
polarpattern2.Angle = 360
polarpattern2.Occurrences = 3
body.Tip = polarpattern2

# Sketch on XY plane
sketch12 = body.newObject("Sketcher::SketchObject", "Sketch011")
sketch12.AttachmentSupport = (doc.getObject("XY_Plane"), [""])
sketch12.MapMode = "FlatFace"
sketch12.addGeometry([
    Part.Circle(App.Vector(-20, -11.547005, 0), App.Vector(0, 0, 1), 8.7),
    Part.Circle(App.Vector(-20, -11.547005, 0), App.Vector(0, 0, 1), 7.2),
], False)
sketch12.addConstraint([
    Sketcher.Constraint("Coincident", 1, 3, 0, 3),
    Sketcher.Constraint("Diameter", 0, 17.4),
    Sketcher.Constraint("Diameter", 1, 14.4),
    Sketcher.Constraint("DistanceX", 0, 3, -1, 1, 20.0),
    Sketcher.Constraint("DistanceY", 0, 3, -1, 1, 11.547005),
])
pocket7 = body.newObject("PartDesign::Pocket", "Pocket006")
pocket7.Profile = sketch12
pocket7.Length = 2
doc.recompute()

polarpattern3 = body.newObject("PartDesign::PolarPattern", "PolarPattern002")
polarpattern3.Originals = [pocket7]
polarpattern3.Axis = (doc.getObject("Z_Axis"), [""])
polarpattern3.Angle = 360
polarpattern3.Occurrences = 3
body.Tip = polarpattern3
doc.recompute()

polarpattern4 = body.newObject("PartDesign::PolarPattern", "PolarPattern003")
polarpattern4.Originals = [pocket4]
polarpattern4.Axis = (doc.getObject("Z_Axis"), [""])
polarpattern4.Angle = 360
polarpattern4.Occurrences = 3
body.Tip = polarpattern4

doc.recompute()
